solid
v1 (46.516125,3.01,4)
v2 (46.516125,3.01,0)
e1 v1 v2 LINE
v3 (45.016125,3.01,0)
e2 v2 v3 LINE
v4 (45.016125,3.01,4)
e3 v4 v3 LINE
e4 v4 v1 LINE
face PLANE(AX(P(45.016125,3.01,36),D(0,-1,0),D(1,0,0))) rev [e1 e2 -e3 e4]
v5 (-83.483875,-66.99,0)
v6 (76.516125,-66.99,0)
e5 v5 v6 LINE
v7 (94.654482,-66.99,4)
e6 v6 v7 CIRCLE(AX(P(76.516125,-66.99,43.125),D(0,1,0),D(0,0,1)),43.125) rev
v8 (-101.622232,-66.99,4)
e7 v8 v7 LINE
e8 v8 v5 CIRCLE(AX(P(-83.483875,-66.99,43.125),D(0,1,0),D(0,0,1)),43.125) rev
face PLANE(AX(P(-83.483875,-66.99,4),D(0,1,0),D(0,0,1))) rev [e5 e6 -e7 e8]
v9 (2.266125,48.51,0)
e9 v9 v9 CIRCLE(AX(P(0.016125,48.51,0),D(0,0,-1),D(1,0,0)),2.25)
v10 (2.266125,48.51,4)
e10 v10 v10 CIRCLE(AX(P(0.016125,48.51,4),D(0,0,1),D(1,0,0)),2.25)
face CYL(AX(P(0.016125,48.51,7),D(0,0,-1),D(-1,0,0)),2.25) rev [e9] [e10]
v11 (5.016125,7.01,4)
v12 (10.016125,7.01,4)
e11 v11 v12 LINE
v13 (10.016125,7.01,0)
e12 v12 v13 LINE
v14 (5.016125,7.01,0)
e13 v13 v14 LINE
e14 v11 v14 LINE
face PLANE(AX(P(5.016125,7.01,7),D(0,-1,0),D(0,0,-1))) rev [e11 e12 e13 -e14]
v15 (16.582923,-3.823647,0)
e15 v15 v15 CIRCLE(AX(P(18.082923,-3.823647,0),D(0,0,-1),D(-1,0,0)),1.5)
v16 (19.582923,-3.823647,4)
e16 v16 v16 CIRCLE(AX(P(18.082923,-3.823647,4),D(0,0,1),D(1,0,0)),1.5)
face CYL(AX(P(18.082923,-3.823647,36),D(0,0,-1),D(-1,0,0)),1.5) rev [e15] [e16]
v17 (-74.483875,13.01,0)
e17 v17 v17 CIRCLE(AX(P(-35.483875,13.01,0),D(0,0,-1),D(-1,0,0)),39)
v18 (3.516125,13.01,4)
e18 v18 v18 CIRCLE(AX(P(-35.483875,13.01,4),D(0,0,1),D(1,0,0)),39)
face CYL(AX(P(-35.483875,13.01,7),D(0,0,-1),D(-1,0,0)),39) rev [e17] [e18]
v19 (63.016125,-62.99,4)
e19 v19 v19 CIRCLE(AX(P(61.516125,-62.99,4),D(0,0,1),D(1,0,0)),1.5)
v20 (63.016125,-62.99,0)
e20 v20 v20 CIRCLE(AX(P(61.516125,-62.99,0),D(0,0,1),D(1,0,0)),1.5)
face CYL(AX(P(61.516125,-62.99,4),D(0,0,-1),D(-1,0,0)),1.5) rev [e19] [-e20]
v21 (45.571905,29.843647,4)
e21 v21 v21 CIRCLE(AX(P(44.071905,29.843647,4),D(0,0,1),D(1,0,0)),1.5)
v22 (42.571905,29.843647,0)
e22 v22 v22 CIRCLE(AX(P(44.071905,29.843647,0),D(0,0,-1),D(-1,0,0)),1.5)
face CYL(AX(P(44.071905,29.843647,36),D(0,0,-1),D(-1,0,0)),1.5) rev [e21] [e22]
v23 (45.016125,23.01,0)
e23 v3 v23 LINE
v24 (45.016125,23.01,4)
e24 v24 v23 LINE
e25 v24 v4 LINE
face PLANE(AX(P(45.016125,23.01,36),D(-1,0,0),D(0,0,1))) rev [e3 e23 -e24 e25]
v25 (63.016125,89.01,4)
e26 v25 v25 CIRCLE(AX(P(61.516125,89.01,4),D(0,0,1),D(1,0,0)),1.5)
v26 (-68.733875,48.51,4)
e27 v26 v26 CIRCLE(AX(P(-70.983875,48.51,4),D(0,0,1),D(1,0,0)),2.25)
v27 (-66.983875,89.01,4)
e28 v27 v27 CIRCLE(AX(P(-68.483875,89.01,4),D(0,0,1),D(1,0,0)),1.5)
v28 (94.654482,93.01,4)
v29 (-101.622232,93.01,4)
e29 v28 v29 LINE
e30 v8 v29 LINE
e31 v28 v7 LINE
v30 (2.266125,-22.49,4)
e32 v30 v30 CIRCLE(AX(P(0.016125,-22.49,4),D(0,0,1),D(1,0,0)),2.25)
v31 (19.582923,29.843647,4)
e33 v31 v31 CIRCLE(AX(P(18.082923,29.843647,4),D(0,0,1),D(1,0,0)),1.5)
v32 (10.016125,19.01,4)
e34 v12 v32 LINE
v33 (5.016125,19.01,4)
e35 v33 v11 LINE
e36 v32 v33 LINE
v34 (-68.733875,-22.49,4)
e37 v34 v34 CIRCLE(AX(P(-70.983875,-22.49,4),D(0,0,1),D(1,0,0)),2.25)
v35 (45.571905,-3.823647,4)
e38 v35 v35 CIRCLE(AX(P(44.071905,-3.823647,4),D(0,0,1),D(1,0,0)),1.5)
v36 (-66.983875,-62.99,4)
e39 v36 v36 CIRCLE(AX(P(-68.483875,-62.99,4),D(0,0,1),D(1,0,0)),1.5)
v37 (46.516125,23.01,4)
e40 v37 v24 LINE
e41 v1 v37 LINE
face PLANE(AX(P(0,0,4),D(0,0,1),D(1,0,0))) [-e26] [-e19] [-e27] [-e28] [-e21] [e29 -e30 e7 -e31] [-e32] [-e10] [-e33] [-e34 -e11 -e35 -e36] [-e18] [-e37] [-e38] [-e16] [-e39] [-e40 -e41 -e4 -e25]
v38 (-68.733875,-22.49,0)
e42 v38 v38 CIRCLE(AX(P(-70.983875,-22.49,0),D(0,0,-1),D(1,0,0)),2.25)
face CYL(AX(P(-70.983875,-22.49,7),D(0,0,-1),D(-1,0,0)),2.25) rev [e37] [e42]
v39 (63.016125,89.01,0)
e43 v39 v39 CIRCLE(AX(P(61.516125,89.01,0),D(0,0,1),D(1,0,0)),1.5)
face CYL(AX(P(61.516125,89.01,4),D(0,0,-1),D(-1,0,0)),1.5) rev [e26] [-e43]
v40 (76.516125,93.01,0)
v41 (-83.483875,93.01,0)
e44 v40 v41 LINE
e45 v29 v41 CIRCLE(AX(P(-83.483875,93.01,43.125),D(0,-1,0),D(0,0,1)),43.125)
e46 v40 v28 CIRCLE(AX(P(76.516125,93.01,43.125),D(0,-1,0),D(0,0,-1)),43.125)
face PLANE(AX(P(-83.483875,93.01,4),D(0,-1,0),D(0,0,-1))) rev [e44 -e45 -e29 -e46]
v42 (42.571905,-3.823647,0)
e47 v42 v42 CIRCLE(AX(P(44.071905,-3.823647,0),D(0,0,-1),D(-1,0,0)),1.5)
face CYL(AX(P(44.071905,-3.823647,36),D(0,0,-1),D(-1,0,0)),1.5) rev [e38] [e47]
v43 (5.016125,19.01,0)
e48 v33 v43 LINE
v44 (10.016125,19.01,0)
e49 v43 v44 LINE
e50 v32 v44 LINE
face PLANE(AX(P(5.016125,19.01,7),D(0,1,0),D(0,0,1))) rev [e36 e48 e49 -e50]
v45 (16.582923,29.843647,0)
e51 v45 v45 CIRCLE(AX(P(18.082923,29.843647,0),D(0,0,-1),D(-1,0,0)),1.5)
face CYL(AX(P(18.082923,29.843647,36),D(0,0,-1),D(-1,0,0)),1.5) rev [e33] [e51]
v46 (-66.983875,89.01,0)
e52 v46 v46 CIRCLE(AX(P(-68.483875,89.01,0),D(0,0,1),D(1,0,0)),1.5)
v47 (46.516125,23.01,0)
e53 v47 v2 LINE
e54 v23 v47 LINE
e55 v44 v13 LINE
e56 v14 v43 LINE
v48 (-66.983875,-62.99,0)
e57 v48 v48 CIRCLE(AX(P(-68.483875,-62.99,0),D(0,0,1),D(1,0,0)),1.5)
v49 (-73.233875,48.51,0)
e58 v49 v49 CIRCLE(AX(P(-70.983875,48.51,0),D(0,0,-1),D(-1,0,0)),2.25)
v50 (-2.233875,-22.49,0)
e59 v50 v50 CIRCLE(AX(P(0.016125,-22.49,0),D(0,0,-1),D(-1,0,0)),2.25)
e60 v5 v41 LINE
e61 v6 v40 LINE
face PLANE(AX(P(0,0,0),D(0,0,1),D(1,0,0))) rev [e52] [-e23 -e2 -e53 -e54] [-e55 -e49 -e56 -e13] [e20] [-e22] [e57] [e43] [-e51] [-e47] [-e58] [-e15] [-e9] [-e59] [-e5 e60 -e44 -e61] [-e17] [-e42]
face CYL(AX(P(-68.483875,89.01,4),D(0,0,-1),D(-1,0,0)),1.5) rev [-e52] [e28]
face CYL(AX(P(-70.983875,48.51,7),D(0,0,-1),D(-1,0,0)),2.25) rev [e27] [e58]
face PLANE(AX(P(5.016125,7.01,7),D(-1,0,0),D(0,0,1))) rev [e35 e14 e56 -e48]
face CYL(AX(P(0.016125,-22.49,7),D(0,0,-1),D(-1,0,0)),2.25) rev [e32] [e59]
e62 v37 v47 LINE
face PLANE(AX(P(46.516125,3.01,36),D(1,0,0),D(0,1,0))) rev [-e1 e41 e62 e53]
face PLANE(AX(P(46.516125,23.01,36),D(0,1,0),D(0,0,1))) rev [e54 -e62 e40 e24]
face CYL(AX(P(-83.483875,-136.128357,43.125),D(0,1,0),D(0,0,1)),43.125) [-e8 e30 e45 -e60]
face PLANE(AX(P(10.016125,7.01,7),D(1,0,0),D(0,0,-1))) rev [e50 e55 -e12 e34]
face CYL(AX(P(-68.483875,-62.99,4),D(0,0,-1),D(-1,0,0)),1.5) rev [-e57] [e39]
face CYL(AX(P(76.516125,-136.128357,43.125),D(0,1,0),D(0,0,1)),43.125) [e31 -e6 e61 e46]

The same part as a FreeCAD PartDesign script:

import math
import FreeCAD as App
import Part
import Sketcher


def add_polygon(sketch, points):
    """Adds a closed chain of lines whose ends are joined by coincident constraints."""
    first, n = sketch.GeometryCount, len(points)
    for a, b in zip(points, points[1:] + points[:1]):
        sketch.addGeometry(Part.LineSegment(App.Vector(*a, 0), App.Vector(*b, 0)), False)
    for i in range(n):
        sketch.addConstraint(Sketcher.Constraint("Coincident", first + i, 2, first + (i + 1) % n, 1))

doc = App.newDocument("Part")
body = doc.addObject("PartDesign::Body", "Body")

sketch1 = body.newObject("Sketcher::SketchObject", "Sketch")
sketch1.AttachmentSupport = (doc.getObject("XY_Plane"), [""])
sketch1.MapMode = "FlatFace"
add_polygon(sketch1, [(-83.5, 93), (-83.5, -67), (76.5, -67), (76.5, 93)])
sketch1.addGeometry(Part.Circle(App.Vector(-68.5, -63, 0), App.Vector(0, 0, 1), 1.5), False)
sketch1.addGeometry(Part.Circle(App.Vector(61.5, -63, 0), App.Vector(0, 0, 1), 1.5), False)
sketch1.addGeometry(Part.Circle(App.Vector(-68.5, 89, 0), App.Vector(0, 0, 1), 1.5), False)
sketch1.addGeometry(Part.Circle(App.Vector(61.5, 89, 0), App.Vector(0, 0, 1), 1.5), False)
sketch1.addConstraint([
    Sketcher.Constraint("Vertical", 0),
    Sketcher.Constraint("Horizontal", 1),
    Sketcher.Constraint("Vertical", 2),
    Sketcher.Constraint("Horizontal", 3),
    Sketcher.Constraint("Equal", 4, 5),
    Sketcher.Constraint("Equal", 5, 6),
    Sketcher.Constraint("Equal", 6, 7),
    Sketcher.Constraint("Horizontal", 4, 3, 5, 3),
    Sketcher.Constraint("Horizontal", 6, 3, 7, 3),
    Sketcher.Constraint("Vertical", 4, 3, 6, 3),
    Sketcher.Constraint("Vertical", 5, 3, 7, 3),
    Sketcher.Constraint("Equal", 3, 0),
    Sketcher.Constraint("Diameter", 4, 3.0),
    Sketcher.Constraint("DistanceX", 1, 1, 1, 2, 160.0),
    Sketcher.Constraint("DistanceX", 4, 3, 5, 3, 130.0),
    Sketcher.Constraint("DistanceY", 4, 3, 6, 3, 152.0),
    Sketcher.Constraint("DistanceX", 0, 2, 4, 3, 15.0),
    Sketcher.Constraint("DistanceY", 0, 2, 4, 3, 4.0),
    Sketcher.Constraint("DistanceY", 4, 3, -1, 1, 62.99),
    Sketcher.Constraint("DistanceX", 4, 3, -1, 1, 68.483875),
])
pad1 = body.newObject("PartDesign::Pad", "Pad")
pad1.Profile = sketch1
pad1.Length = 4

sketch2 = body.newObject("Sketcher::SketchObject", "Sketch001")
sketch2.AttachmentSupport = (doc.getObject("XY_Plane"), [""])
sketch2.MapMode = "FlatFace"
sketch2.addGeometry(Part.Circle(App.Vector(44.1, 29.8, 0), App.Vector(0, 0, 1), 1.5), False)
sketch2.addGeometry(Part.Circle(App.Vector(44.1, -3.8, 0), App.Vector(0, 0, 1), 1.5), False)
sketch2.addGeometry(Part.Circle(App.Vector(18.1, -3.8, 0), App.Vector(0, 0, 1), 1.5), False)
sketch2.addGeometry(Part.Circle(App.Vector(18.1, 29.8, 0), App.Vector(0, 0, 1), 1.5), False)
add_polygon(sketch2, [(46.5, 23), (46.5, 3), (45, 3), (45, 23)])
sketch2.addConstraint([
    Sketcher.Constraint("Vertical", 4),
    Sketcher.Constraint("Horizontal", 5),
    Sketcher.Constraint("Vertical", 6),
    Sketcher.Constraint("Horizontal", 7),
    Sketcher.Constraint("Equal", 0, 1),
    Sketcher.Constraint("Equal", 1, 2),
    Sketcher.Constraint("Equal", 2, 3),
    Sketcher.Constraint("Horizontal", 1, 3, 2, 3),
    Sketcher.Constraint("Horizontal", 0, 3, 3, 3),
    Sketcher.Constraint("Vertical", 0, 3, 1, 3),
    Sketcher.Constraint("Vertical", 2, 3, 3, 3),
    Sketcher.Constraint("Diameter", 0, 3.0),
    Sketcher.Constraint("DistanceY", 4, 2, 4, 1, 20.0),
    Sketcher.Constraint("DistanceX", 5, 2, 5, 1, 1.5),
    Sketcher.Constraint("DistanceY", -1, 1, 4, 2, 3.01),
    Sketcher.Constraint("DistanceX", 1, 3, 4, 2, 2.44422),
    Sketcher.Constraint("DistanceX", -1, 1, 0, 3, 44.071905),
    Sketcher.Constraint("DistanceY", -1, 1, 0, 3, 29.843647),
    Sketcher.Constraint("DistanceY", 1, 3, -1, 1, 3.823647),
    Sketcher.Constraint("DistanceX", -1, 1, 2, 3, 18.082923),
])
pocket1 = body.newObject("PartDesign::Pocket", "Pocket")
pocket1.Profile = sketch2
pocket1.Length = 36
pocket1.Reversed = True

sketch3 = body.newObject("Sketcher::SketchObject", "Sketch002")
sketch3.AttachmentSupport = (doc.getObject("XY_Plane"), [""])
sketch3.MapMode = "FlatFace"
sketch3.addGeometry(Part.Circle(App.Vector(-35.5, 13, 0), App.Vector(0, 0, 1), 39), False)
sketch3.addGeometry(Part.Circle(App.Vector(-71, 48.5, 0), App.Vector(0, 0, 1), 2.2), False)
sketch3.addGeometry(Part.Circle(App.Vector(-71, -22.5, 0), App.Vector(0, 0, 1), 2.2), False)
sketch3.addGeometry(Part.Circle(App.Vector(0, 48.5, 0), App.Vector(0, 0, 1), 2.2), False)
sketch3.addGeometry(Part.Circle(App.Vector(0, -22.5, 0), App.Vector(0, 0, 1), 2.2), False)
add_polygon(sketch3, [(10, 19), (10, 7), (5, 7), (5, 19)])
sketch3.addConstraint([
    Sketcher.Constraint("Vertical", 5),
    Sketcher.Constraint("Horizontal", 6),
    Sketcher.Constraint("Vertical", 7),
    Sketcher.Constraint("Horizontal", 8),
    Sketcher.Constraint("Equal", 1, 2),
    Sketcher.Constraint("Equal", 2, 3),
    Sketcher.Constraint("Equal", 3, 4),
    Sketcher.Constraint("Horizontal", 1, 3, 3, 3),
    Sketcher.Constraint("Horizontal", 2, 3, 4, 3),
    Sketcher.Constraint("Vertical", 1, 3, 2, 3),
    Sketcher.Constraint("Vertical", 3, 3, 4, 3),
    Sketcher.Constraint("Diameter", 0, 78.0),
    Sketcher.Constraint("Diameter", 1, 4.5),
    Sketcher.Constraint("DistanceX", 6, 2, 6, 1, 5.0),
    Sketcher.Constraint("DistanceY", 5, 2, 5, 1, 12.0),
    Sketcher.Constraint("DistanceY", 2, 3, 1, 3, 71.0),
    Sketcher.Constraint("DistanceX", 1, 3, 3, 3, 71.0),
    Sketcher.Constraint("DistanceX", 4, 3, 5, 2, 10.0),
    Sketcher.Constraint("DistanceY", 5, 2, 0, 3, 6.0),
    Sketcher.Constraint("DistanceX", 1, 3, 0, 3, 35.5),
    Sketcher.Constraint("DistanceY", 0, 3, 1, 3, 35.5),
    Sketcher.Constraint("DistanceY", -1, 1, 0, 3, 13.01),
    Sketcher.Constraint("DistanceX", 0, 3, -1, 1, 35.483875),
])
pocket2 = body.newObject("PartDesign::Pocket", "Pocket001")
pocket2.Profile = sketch3
pocket2.Length = 7
pocket2.Reversed = True

sketch4 = body.newObject("Sketcher::SketchObject", "Sketch003")
sketch4.AttachmentSupport = (doc.getObject("YZ_Plane"), [""])
sketch4.MapMode = "FlatFace"
sketch4.AttachmentOffset = App.Placement(App.Vector(0, 0, -83.483875), App.Rotation())
add_polygon(sketch4, [(93, 0), (-67, 0), (-67, 4), (93, 4)])
sketch4.addConstraint([
    Sketcher.Constraint("Horizontal", 0),
    Sketcher.Constraint("Vertical", 1),
    Sketcher.Constraint("Horizontal", 2),
    Sketcher.Constraint("Vertical", 3),
    Sketcher.Constraint("PointOnObject", 0, 2, -1),
    Sketcher.Constraint("DistanceX", 0, 2, 0, 1, 160.0),
    Sketcher.Constraint("DistanceY", 1, 1, 1, 2, 4.0),
    Sketcher.Constraint("DistanceX", 0, 2, -1, 1, 66.99),
])
pad2 = body.newObject("PartDesign::Pad", "Pad001")
pad2.Profile = sketch4
pad2.Length = 18.138357
pad2.Reversed = True

sketch5 = body.newObject("Sketcher::SketchObject", "Sketch004")
sketch5.AttachmentSupport = (doc.getObject("YZ_Plane"), [""])
sketch5.MapMode = "FlatFace"
sketch5.AttachmentOffset = App.Placement(App.Vector(0, 0, 76.516125), App.Rotation())
add_polygon(sketch5, [(93, 4), (-67, 4), (-67, 0), (93, 0)])
sketch5.addConstraint([
    Sketcher.Constraint("Horizontal", 0),
    Sketcher.Constraint("Vertical", 1),
    Sketcher.Constraint("Horizontal", 2),
    Sketcher.Constraint("Vertical", 3),
    Sketcher.Constraint("PointOnObject", 1, 2, -1),
    Sketcher.Constraint("DistanceX", 0, 2, 0, 1, 160.0),
    Sketcher.Constraint("DistanceY", 1, 2, 1, 1, 4.0),
    Sketcher.Constraint("DistanceX", 0, 2, -1, 1, 66.99),
])
pad3 = body.newObject("PartDesign::Pad", "Pad002")
pad3.Profile = sketch5
pad3.Length = 18.138357

sketch6 = body.newObject("Sketcher::SketchObject", "Sketch005")
sketch6.AttachmentSupport = (doc.getObject("XZ_Plane"), [""])
sketch6.MapMode = "FlatFace"
sketch6.AttachmentOffset = App.Placement(App.Vector(0, 0, -93.01), App.Rotation())
sketch6.addGeometry([
    Part.LineSegment(App.Vector(-101.6, 0, 0), App.Vector(-101.6, 4, 0)),
    Part.ArcOfCircle(Part.Circle(App.Vector(-83.5, 43.1, 0), App.Vector(0, 0, 1), 43.1), math.radians(-115), math.radians(-90)),
    Part.LineSegment(App.Vector(-83.5, 0, 0), App.Vector(-101.6, 0, 0)),
    Part.LineSegment(App.Vector(94.7, 0, 0), App.Vector(76.5, 0, 0)),
    Part.ArcOfCircle(Part.Circle(App.Vector(76.5, 43.1, 0), App.Vector(0, 0, 1), 43.1), math.radians(-90), math.radians(-65)),
    Part.LineSegment(App.Vector(94.7, 4, 0), App.Vector(94.7, 0, 0)),
], False)
sketch6.addConstraint([
    Sketcher.Constraint("Coincident", 0, 2, 1, 1),
    Sketcher.Constraint("Tangent", 1, 2, 2, 1),
    Sketcher.Constraint("Coincident", 2, 2, 0, 1),
    Sketcher.Constraint("Tangent", 3, 2, 4, 1),
    Sketcher.Constraint("Coincident", 4, 2, 5, 1),
    Sketcher.Constraint("Coincident", 5, 2, 3, 1),
    Sketcher.Constraint("Vertical", 0),
    Sketcher.Constraint("Horizontal", 2),
    Sketcher.Constraint("Horizontal", 3),
    Sketcher.Constraint("Vertical", 5),
    Sketcher.Constraint("Equal", 1, 4),
    Sketcher.Constraint("PointOnObject", 1, 2, -1),
    Sketcher.Constraint("PointOnObject", 3, 2, -1),
    Sketcher.Constraint("Horizontal", 0, 2, 4, 2),
    Sketcher.Constraint("DistanceY", 0, 1, 0, 2, 4.0),
    Sketcher.Constraint("Radius", 1, 43.125),
    Sketcher.Constraint("DistanceX", 1, 3, 4, 3, 160.0),
    Sketcher.Constraint("DistanceX", 1, 3, -1, 1, 83.483875),
])
pocket3 = body.newObject("PartDesign::Pocket", "Pocket002")
pocket3.Profile = sketch6
pocket3.Length = 229.138357
pocket3.Reversed = True

doc.recompute()
